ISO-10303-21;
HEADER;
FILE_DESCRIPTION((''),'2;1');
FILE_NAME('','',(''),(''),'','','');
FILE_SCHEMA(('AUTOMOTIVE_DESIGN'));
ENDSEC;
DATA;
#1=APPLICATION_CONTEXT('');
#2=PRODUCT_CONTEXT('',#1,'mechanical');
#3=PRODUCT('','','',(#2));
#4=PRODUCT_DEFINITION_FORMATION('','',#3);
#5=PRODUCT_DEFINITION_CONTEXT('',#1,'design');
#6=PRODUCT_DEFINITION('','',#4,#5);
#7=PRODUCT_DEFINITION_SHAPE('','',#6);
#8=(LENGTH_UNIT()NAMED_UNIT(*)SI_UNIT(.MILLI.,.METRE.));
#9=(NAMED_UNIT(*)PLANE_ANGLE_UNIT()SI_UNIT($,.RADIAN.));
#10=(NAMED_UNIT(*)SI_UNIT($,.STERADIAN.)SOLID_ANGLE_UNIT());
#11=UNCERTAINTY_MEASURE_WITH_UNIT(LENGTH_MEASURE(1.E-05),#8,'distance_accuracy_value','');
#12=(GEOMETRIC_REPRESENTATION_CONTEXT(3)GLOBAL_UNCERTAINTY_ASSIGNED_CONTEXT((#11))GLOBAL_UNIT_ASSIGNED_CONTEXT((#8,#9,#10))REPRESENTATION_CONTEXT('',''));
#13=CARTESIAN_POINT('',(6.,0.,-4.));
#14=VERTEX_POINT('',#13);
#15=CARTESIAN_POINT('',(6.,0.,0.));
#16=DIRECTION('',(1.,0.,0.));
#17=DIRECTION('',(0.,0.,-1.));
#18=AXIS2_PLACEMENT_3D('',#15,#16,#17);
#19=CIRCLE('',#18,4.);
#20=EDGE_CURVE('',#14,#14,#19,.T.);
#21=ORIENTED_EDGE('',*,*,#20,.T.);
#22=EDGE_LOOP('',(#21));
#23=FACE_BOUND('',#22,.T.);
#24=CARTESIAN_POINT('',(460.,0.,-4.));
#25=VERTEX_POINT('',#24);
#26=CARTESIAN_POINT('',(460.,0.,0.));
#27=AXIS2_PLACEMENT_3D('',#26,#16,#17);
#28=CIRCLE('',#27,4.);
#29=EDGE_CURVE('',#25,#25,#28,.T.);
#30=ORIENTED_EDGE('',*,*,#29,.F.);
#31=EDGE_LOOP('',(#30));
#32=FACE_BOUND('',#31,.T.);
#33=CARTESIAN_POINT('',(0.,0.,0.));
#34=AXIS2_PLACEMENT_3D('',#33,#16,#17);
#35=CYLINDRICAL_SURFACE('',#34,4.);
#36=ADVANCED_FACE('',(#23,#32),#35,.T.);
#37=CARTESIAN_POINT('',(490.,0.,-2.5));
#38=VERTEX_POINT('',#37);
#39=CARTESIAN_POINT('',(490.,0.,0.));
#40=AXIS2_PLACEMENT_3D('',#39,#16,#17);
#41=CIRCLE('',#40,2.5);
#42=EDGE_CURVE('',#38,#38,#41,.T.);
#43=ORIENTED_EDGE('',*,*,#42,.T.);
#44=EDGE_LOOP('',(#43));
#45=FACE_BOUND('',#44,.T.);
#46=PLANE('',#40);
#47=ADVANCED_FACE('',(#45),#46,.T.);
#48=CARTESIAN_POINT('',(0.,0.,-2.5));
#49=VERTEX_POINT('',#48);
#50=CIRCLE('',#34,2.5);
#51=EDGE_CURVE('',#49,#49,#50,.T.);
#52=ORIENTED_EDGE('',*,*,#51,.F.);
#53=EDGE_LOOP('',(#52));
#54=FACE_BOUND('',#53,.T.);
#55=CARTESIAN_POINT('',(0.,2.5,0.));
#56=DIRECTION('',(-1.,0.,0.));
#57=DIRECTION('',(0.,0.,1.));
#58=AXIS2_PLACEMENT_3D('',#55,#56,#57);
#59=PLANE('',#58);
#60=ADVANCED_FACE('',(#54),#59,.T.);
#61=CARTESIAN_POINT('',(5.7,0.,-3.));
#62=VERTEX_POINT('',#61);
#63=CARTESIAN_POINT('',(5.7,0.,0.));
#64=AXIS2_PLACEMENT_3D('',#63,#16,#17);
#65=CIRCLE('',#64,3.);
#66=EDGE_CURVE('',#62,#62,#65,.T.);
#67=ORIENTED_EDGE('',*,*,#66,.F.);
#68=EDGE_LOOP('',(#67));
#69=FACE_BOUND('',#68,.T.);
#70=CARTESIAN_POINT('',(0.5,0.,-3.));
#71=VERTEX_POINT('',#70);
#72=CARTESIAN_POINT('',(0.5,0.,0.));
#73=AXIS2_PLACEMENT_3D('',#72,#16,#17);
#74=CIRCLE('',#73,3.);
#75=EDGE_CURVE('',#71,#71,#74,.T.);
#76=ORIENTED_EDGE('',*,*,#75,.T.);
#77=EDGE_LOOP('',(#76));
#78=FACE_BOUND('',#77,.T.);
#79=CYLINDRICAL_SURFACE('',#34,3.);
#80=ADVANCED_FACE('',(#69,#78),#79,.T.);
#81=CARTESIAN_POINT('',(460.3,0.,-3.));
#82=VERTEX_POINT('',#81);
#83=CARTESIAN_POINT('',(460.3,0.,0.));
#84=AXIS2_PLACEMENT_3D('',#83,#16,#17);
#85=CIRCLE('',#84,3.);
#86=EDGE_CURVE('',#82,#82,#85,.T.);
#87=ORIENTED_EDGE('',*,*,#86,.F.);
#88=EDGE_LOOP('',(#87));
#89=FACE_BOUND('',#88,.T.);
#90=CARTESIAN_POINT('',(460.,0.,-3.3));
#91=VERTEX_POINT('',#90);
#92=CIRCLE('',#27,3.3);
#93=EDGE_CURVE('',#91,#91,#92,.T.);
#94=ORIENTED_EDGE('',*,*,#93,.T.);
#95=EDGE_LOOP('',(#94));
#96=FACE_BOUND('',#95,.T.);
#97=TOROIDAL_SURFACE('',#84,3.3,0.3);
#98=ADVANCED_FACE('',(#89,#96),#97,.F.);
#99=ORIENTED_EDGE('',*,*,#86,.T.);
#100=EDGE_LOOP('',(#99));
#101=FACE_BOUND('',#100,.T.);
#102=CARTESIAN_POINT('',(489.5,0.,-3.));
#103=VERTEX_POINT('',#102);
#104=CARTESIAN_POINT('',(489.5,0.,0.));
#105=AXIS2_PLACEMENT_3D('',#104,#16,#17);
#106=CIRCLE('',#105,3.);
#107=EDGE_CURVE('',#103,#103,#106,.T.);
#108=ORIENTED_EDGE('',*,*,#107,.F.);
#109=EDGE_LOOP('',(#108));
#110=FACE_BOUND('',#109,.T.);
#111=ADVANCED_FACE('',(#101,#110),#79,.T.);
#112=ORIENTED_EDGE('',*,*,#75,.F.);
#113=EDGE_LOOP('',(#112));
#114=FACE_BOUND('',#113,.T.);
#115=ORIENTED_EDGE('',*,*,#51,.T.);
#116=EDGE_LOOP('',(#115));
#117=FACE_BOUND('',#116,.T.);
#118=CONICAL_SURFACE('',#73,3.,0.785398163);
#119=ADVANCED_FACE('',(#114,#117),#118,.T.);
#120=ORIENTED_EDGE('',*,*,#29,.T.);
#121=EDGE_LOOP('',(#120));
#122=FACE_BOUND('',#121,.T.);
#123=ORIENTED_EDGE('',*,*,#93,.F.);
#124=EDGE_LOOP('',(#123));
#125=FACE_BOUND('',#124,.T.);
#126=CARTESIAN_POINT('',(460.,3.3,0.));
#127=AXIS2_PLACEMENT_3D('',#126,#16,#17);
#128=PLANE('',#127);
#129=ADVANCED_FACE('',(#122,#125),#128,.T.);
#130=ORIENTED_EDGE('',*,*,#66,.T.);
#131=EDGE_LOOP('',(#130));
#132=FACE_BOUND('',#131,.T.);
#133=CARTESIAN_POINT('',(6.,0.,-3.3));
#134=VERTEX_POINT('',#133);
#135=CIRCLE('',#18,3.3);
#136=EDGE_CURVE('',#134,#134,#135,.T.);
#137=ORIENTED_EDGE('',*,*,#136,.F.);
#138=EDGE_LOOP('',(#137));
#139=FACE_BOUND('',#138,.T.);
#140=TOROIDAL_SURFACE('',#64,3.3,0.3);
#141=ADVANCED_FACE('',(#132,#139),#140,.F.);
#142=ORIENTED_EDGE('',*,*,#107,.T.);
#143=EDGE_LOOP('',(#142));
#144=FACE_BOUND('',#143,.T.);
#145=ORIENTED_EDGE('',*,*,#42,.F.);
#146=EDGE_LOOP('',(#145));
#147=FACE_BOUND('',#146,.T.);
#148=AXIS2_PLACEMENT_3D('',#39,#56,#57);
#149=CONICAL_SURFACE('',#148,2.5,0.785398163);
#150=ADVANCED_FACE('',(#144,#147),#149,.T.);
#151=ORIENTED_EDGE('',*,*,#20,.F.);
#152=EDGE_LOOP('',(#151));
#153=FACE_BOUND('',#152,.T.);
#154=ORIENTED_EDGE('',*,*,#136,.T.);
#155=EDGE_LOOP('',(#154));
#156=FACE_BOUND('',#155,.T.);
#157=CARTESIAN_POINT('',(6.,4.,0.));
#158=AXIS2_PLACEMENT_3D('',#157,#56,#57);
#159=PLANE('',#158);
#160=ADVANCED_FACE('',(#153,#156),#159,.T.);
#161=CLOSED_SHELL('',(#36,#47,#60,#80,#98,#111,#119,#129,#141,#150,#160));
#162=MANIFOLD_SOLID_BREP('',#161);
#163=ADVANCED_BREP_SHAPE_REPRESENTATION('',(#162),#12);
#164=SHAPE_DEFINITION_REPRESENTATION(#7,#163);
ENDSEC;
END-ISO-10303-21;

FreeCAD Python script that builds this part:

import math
import FreeCAD as App
import Part
import Sketcher

doc = App.newDocument("Part")
body = doc.addObject("PartDesign::Body", "Body")

# Sketch on XY plane
sketch1 = doc.addObject("Sketcher::SketchObject", "Sketch")
body.addObject(sketch1)
sketch1.AttachmentSupport = (doc.XY_Plane, [""])
sketch1.MapMode = "FlatFace"
sketch1.addGeometry(Part.LineSegment(App.Vector(0, 2.5, 0), App.Vector(0, 0, 0)), False)
sketch1.addGeometry(Part.LineSegment(App.Vector(0, 0, 0), App.Vector(490, 0, 0)), False)
sketch1.addGeometry(Part.LineSegment(App.Vector(490, 0, 0), App.Vector(490, 2.5, 0)), False)
sketch1.addGeometry(Part.LineSegment(App.Vector(490, 2.5, 0), App.Vector(489.5, 3, 0)), False)
sketch1.addGeometry(Part.LineSegment(App.Vector(489.5, 3, 0), App.Vector(460.3, 3, 0)), False)
sketch1.addGeometry(Part.ArcOfCircle(Part.Circle(App.Vector(460.3, 3.3, 0), App.Vector(0, 0, 1), 0.3), math.radians(-180), math.radians(-90)), False)
sketch1.addGeometry(Part.LineSegment(App.Vector(460, 3.3, 0), App.Vector(460, 4, 0)), False)
sketch1.addGeometry(Part.LineSegment(App.Vector(460, 4, 0), App.Vector(6, 4, 0)), False)
sketch1.addGeometry(Part.LineSegment(App.Vector(6, 4, 0), App.Vector(6, 3.3, 0)), False)
sketch1.addGeometry(Part.ArcOfCircle(Part.Circle(App.Vector(5.7, 3.3, 0), App.Vector(0, 0, 1), 0.3), math.radians(-90), math.radians(0)), False)
sketch1.addGeometry(Part.LineSegment(App.Vector(5.7, 3, 0), App.Vector(0.5, 3, 0)), False)
sketch1.addGeometry(Part.LineSegment(App.Vector(0.5, 3, 0), App.Vector(0, 2.5, 0)), False)
sketch1.addConstraint(Sketcher.Constraint("Coincident", 0, 2, 1, 1))
sketch1.addConstraint(Sketcher.Constraint("Coincident", 1, 2, 2, 1))
sketch1.addConstraint(Sketcher.Constraint("Coincident", 2, 2, 3, 1))
sketch1.addConstraint(Sketcher.Constraint("Coincident", 3, 2, 4, 1))
sketch1.addConstraint(Sketcher.Constraint("Tangent", 4, 2, 5, 2))
sketch1.addConstraint(Sketcher.Constraint("Tangent", 5, 1, 6, 1))
sketch1.addConstraint(Sketcher.Constraint("Coincident", 6, 2, 7, 1))
sketch1.addConstraint(Sketcher.Constraint("Coincident", 7, 2, 8, 1))
sketch1.addConstraint(Sketcher.Constraint("Tangent", 8, 2, 9, 2))
sketch1.addConstraint(Sketcher.Constraint("Tangent", 9, 1, 10, 1))
sketch1.addConstraint(Sketcher.Constraint("Coincident", 10, 2, 11, 1))
sketch1.addConstraint(Sketcher.Constraint("Coincident", 11, 2, 0, 1))
sketch1.addConstraint(Sketcher.Constraint("Vertical", 0))
sketch1.addConstraint(Sketcher.Constraint("Horizontal", 1))
sketch1.addConstraint(Sketcher.Constraint("Vertical", 2))
sketch1.addConstraint(Sketcher.Constraint("Horizontal", 4))
sketch1.addConstraint(Sketcher.Constraint("Vertical", 6))
sketch1.addConstraint(Sketcher.Constraint("Horizontal", 7))
sketch1.addConstraint(Sketcher.Constraint("Vertical", 8))
sketch1.addConstraint(Sketcher.Constraint("Horizontal", 10))
sketch1.addConstraint(Sketcher.Constraint("Coincident", 0, 2, -1, 1))
sketch1.addConstraint(Sketcher.Constraint("Equal", 5, 9))
sketch1.addConstraint(Sketcher.Constraint("Perpendicular", 3, 11))
sketch1.addConstraint(Sketcher.Constraint("Horizontal", 5, 3, 9, 3))
sketch1.addConstraint(Sketcher.Constraint("Horizontal", 2, 2, 11, 2))
sketch1.addConstraint(Sketcher.Constraint("Equal", 3, 11))
sketch1.addConstraint(Sketcher.Constraint("Radius", 5, 0.3))
sketch1.addConstraint(Sketcher.Constraint("DistanceX", 1, 1, 1, 2, 490.0))
sketch1.addConstraint(Sketcher.Constraint("DistanceX", 7, 2, 7, 1, 454.0))
sketch1.addConstraint(Sketcher.Constraint("DistanceX", 4, 2, 4, 1, 29.2))
sketch1.addConstraint(Sketcher.Constraint("DistanceX", 10, 2, 10, 1, 5.2))
sketch1.addConstraint(Sketcher.Constraint("DistanceY", 0, 2, 0, 1, 2.5))
sketch1.addConstraint(Sketcher.Constraint("DistanceY", 6, 1, 6, 2, 0.7))
revolution = doc.addObject("PartDesign::Revolution", "Revolution")
body.addObject(revolution)
revolution.Profile = sketch1
revolution.ReferenceAxis = (sketch1, ["H_Axis"])
revolution.Angle = 360

doc.recompute()
